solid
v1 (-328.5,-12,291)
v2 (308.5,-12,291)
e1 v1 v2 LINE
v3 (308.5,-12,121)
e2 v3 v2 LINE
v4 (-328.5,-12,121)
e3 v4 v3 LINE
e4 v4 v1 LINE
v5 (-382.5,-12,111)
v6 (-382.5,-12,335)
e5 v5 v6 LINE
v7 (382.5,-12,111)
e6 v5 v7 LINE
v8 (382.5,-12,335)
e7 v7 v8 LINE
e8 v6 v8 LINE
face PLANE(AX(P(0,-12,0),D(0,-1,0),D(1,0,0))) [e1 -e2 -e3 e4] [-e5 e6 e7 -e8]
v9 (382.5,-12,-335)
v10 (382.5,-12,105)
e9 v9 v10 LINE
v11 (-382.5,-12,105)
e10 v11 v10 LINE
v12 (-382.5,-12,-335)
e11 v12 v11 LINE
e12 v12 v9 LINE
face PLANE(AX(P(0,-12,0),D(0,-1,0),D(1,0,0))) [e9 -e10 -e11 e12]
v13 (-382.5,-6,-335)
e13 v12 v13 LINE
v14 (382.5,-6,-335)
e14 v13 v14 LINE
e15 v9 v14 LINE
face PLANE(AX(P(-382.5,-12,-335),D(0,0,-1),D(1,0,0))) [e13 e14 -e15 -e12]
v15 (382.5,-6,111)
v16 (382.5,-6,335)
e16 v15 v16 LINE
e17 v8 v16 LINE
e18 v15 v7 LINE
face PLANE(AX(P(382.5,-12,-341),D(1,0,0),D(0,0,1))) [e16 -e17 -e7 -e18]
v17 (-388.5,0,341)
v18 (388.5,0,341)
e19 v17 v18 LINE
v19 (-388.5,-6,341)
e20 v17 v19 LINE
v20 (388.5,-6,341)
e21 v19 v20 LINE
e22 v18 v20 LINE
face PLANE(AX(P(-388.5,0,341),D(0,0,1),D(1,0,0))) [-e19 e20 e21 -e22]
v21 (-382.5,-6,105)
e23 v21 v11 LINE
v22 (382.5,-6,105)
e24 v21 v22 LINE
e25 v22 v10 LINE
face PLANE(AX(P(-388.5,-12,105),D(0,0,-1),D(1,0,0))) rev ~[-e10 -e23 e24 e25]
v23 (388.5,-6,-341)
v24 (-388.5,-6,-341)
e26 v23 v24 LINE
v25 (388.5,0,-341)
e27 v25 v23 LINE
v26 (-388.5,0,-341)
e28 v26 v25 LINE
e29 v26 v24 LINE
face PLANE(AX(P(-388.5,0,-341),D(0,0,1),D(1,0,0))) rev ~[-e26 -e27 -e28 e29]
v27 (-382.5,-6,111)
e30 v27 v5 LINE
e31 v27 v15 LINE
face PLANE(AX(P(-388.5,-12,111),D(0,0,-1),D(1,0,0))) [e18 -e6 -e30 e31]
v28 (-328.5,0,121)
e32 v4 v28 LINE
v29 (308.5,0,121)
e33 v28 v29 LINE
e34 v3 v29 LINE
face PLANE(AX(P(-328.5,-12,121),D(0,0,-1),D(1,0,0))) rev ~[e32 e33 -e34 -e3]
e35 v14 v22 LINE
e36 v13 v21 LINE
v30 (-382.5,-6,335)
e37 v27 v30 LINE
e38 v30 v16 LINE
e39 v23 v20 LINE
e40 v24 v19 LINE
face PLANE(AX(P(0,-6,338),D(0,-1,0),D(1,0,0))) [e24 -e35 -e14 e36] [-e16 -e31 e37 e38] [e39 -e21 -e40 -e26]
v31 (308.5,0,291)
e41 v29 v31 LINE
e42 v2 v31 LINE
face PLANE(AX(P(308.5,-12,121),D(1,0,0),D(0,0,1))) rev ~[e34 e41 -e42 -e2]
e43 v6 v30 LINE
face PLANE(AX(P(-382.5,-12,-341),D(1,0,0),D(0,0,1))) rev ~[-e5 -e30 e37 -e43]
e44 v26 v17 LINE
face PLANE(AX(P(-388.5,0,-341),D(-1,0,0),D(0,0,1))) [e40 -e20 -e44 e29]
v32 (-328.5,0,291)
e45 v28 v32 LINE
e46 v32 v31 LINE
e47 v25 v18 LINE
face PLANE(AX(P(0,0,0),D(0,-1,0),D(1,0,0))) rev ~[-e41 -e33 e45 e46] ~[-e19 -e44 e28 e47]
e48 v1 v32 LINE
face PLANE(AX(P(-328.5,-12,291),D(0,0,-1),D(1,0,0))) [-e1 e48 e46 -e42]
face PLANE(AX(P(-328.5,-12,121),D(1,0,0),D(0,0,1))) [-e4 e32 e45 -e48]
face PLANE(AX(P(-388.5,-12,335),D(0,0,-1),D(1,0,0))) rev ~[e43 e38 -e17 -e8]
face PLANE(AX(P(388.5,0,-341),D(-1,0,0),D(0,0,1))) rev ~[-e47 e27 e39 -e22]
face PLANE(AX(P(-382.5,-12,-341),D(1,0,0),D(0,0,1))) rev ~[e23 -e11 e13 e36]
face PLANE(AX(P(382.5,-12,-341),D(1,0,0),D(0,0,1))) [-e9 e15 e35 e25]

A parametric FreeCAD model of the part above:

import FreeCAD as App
import Part
import Sketcher
from FreeCAD import Vector

doc = App.newDocument("Part")
body = doc.addObject("PartDesign::Body", "Body")

sketch1 = body.newObject("Sketcher::SketchObject", "Sketch")
sketch1.AttachmentSupport = (doc.getObject("XZ_Plane"), [""])
sketch1.MapMode = "FlatFace"
sketch1.addGeometry(Part.LineSegment(Vector(-388, 341, 0), Vector(-388, -341, 0)), False)
sketch1.addGeometry(Part.LineSegment(Vector(-388, -341, 0), Vector(388, -341, 0)), False)
sketch1.addGeometry(Part.LineSegment(Vector(388, -341, 0), Vector(388, 341, 0)), False)
sketch1.addGeometry(Part.LineSegment(Vector(388, 341, 0), Vector(-388, 341, 0)), False)
sketch1.addConstraint(Sketcher.Constraint("Coincident", 0, 2, 1, 1))
sketch1.addConstraint(Sketcher.Constraint("Coincident", 1, 2, 2, 1))
sketch1.addConstraint(Sketcher.Constraint("Coincident", 2, 2, 3, 1))
sketch1.addConstraint(Sketcher.Constraint("Coincident", 3, 2, 0, 1))
sketch1.addConstraint(Sketcher.Constraint("Vertical", 0))
sketch1.addConstraint(Sketcher.Constraint("Horizontal", 1))
sketch1.addConstraint(Sketcher.Constraint("Vertical", 2))
sketch1.addConstraint(Sketcher.Constraint("Horizontal", 3))
sketch1.addConstraint(Sketcher.Constraint("Symmetric", 0, 2, 2, 2, -1, 1))
sketch1.addConstraint(Sketcher.Constraint("DistanceX", 1, 1, 1, 2, 777.0))
sketch1.addConstraint(Sketcher.Constraint("DistanceY", 0, 2, 0, 1, 682.0))
pad1 = body.newObject("PartDesign::Pad", "Pad")
pad1.Profile = sketch1
pad1.Length = 12

sketch2 = body.newObject("Sketcher::SketchObject", "Sketch001")
sketch2.AttachmentSupport = (doc.getObject("XZ_Plane"), [""])
sketch2.MapMode = "FlatFace"
sketch2.AttachmentOffset = App.Placement(Vector(0, 0, 12), App.Rotation())
sketch2.addGeometry(Part.LineSegment(Vector(-388, 111, 0), Vector(-388, 105, 0)), False)
sketch2.addGeometry(Part.LineSegment(Vector(-388, 105, 0), Vector(388, 105, 0)), False)
sketch2.addGeometry(Part.LineSegment(Vector(388, 105, 0), Vector(388, 111, 0)), False)
sketch2.addGeometry(Part.LineSegment(Vector(388, 111, 0), Vector(-388, 111, 0)), False)
sketch2.addConstraint(Sketcher.Constraint("Coincident", 0, 2, 1, 1))
sketch2.addConstraint(Sketcher.Constraint("Coincident", 1, 2, 2, 1))
sketch2.addConstraint(Sketcher.Constraint("Coincident", 2, 2, 3, 1))
sketch2.addConstraint(Sketcher.Constraint("Coincident", 3, 2, 0, 1))
sketch2.addConstraint(Sketcher.Constraint("Vertical", 0))
sketch2.addConstraint(Sketcher.Constraint("Horizontal", 1))
sketch2.addConstraint(Sketcher.Constraint("Vertical", 2))
sketch2.addConstraint(Sketcher.Constraint("Horizontal", 3))
sketch2.addConstraint(Sketcher.Constraint("DistanceX", 1, 1, 1, 2, 777.0))
sketch2.addConstraint(Sketcher.Constraint("DistanceY", 0, 2, 0, 1, 6.0))
sketch2.addConstraint(Sketcher.Constraint("DistanceY", -1, 1, 0, 2, 105.0))
sketch2.addConstraint(Sketcher.Constraint("DistanceX", 0, 2, -1, 1, 388.5))
pocket1 = body.newObject("PartDesign::Pocket", "Pocket")
pocket1.Profile = sketch2
pocket1.Length = 6

sketch3 = body.newObject("Sketcher::SketchObject", "Sketch002")
sketch3.AttachmentSupport = (doc.getObject("XZ_Plane"), [""])
sketch3.MapMode = "FlatFace"
sketch3.AttachmentOffset = App.Placement(Vector(0, 0, 12), App.Rotation())
sketch3.addGeometry(Part.LineSegment(Vector(-328, 291, 0), Vector(-328, 121, 0)), False)
sketch3.addGeometry(Part.LineSegment(Vector(-328, 121, 0), Vector(308, 121, 0)), False)
sketch3.addGeometry(Part.LineSegment(Vector(308, 121, 0), Vector(308, 291, 0)), False)
sketch3.addGeometry(Part.LineSegment(Vector(308, 291, 0), Vector(-328, 291, 0)), False)
sketch3.addConstraint(Sketcher.Constraint("Coincident", 0, 2, 1, 1))
sketch3.addConstraint(Sketcher.Constraint("Coincident", 1, 2, 2, 1))
sketch3.addConstraint(Sketcher.Constraint("Coincident", 2, 2, 3, 1))
sketch3.addConstraint(Sketcher.Constraint("Coincident", 3, 2, 0, 1))
sketch3.addConstraint(Sketcher.Constraint("Vertical", 0))
sketch3.addConstraint(Sketcher.Constraint("Horizontal", 1))
sketch3.addConstraint(Sketcher.Constraint("Vertical", 2))
sketch3.addConstraint(Sketcher.Constraint("Horizontal", 3))
sketch3.addConstraint(Sketcher.Constraint("DistanceX", 1, 1, 1, 2, 637.0))
sketch3.addConstraint(Sketcher.Constraint("DistanceY", 0, 2, 0, 1, 170.0))
sketch3.addConstraint(Sketcher.Constraint("DistanceY", -1, 1, 0, 2, 121.0))
sketch3.addConstraint(Sketcher.Constraint("DistanceX", 0, 2, -1, 1, 328.5))
pocket2 = body.newObject("PartDesign::Pocket", "Pocket001")
pocket2.Profile = sketch3
pocket2.Type = "ThroughAll"

sketch4 = body.newObject("Sketcher::SketchObject", "Sketch003")
sketch4.AttachmentSupport = (doc.getObject("XZ_Plane"), [""])
sketch4.MapMode = "FlatFace"
sketch4.AttachmentOffset = App.Placement(Vector(0, 0, 12), App.Rotation())
sketch4.addGeometry(Part.LineSegment(Vector(-388, 341, 0), Vector(-388, 335, 0)), False)
sketch4.addGeometry(Part.LineSegment(Vector(-388, 335, 0), Vector(388, 335, 0)), False)
sketch4.addGeometry(Part.LineSegment(Vector(388, 335, 0), Vector(388, 341, 0)), False)
sketch4.addGeometry(Part.LineSegment(Vector(388, 341, 0), Vector(-388, 341, 0)), False)
sketch4.addConstraint(Sketcher.Constraint("Coincident", 0, 2, 1, 1))
sketch4.addConstraint(Sketcher.Constraint("Coincident", 1, 2, 2, 1))
sketch4.addConstraint(Sketcher.Constraint("Coincident", 2, 2, 3, 1))
sketch4.addConstraint(Sketcher.Constraint("Coincident", 3, 2, 0, 1))
sketch4.addConstraint(Sketcher.Constraint("Vertical", 0))
sketch4.addConstraint(Sketcher.Constraint("Horizontal", 1))
sketch4.addConstraint(Sketcher.Constraint("Vertical", 2))
sketch4.addConstraint(Sketcher.Constraint("Horizontal", 3))
sketch4.addConstraint(Sketcher.Constraint("DistanceX", 1, 1, 1, 2, 777.0))
sketch4.addConstraint(Sketcher.Constraint("DistanceY", 0, 2, 0, 1, 6.0))
sketch4.addConstraint(Sketcher.Constraint("DistanceY", -1, 1, 0, 2, 335.0))
sketch4.addConstraint(Sketcher.Constraint("DistanceX", 0, 2, -1, 1, 388.5))
pocket3 = body.newObject("PartDesign::Pocket", "Pocket002")
pocket3.Profile = sketch4
pocket3.Length = 6

sketch5 = body.newObject("Sketcher::SketchObject", "Sketch004")
sketch5.AttachmentSupport = (doc.getObject("XZ_Plane"), [""])
sketch5.MapMode = "FlatFace"
sketch5.AttachmentOffset = App.Placement(Vector(0, 0, 12), App.Rotation())
sketch5.addGeometry(Part.LineSegment(Vector(-388, 335, 0), Vector(-388, -341, 0)), False)
sketch5.addGeometry(Part.LineSegment(Vector(-388, -341, 0), Vector(-382, -341, 0)), False)
sketch5.addGeometry(Part.LineSegment(Vector(-382, -341, 0), Vector(-382, 335, 0)), False)
sketch5.addGeometry(Part.LineSegment(Vector(-382, 335, 0), Vector(-388, 335, 0)), False)
sketch5.addConstraint(Sketcher.Constraint("Coincident", 0, 2, 1, 1))
sketch5.addConstraint(Sketcher.Constraint("Coincident", 1, 2, 2, 1))
sketch5.addConstraint(Sketcher.Constraint("Coincident", 2, 2, 3, 1))
sketch5.addConstraint(Sketcher.Constraint("Coincident", 3, 2, 0, 1))
sketch5.addConstraint(Sketcher.Constraint("Vertical", 0))
sketch5.addConstraint(Sketcher.Constraint("Horizontal", 1))
sketch5.addConstraint(Sketcher.Constraint("Vertical", 2))
sketch5.addConstraint(Sketcher.Constraint("Horizontal", 3))
sketch5.addConstraint(Sketcher.Constraint("DistanceX", 1, 1, 1, 2, 6.0))
sketch5.addConstraint(Sketcher.Constraint("DistanceY", 0, 2, 0, 1, 676.0))
sketch5.addConstraint(Sketcher.Constraint("DistanceY", 0, 2, -1, 1, 341.0))
sketch5.addConstraint(Sketcher.Constraint("DistanceX", 0, 2, -1, 1, 388.5))
pocket4 = body.newObject("PartDesign::Pocket", "Pocket003")
pocket4.Profile = sketch5
pocket4.Length = 6

sketch6 = body.newObject("Sketcher::SketchObject", "Sketch005")
sketch6.AttachmentSupport = (doc.getObject("XZ_Plane"), [""])
sketch6.MapMode = "FlatFace"
sketch6.AttachmentOffset = App.Placement(Vector(0, 0, 12), App.Rotation())
sketch6.addGeometry(Part.LineSegment(Vector(382, 335, 0), Vector(382, -341, 0)), False)
sketch6.addGeometry(Part.LineSegment(Vector(382, -341, 0), Vector(388, -341, 0)), False)
sketch6.addGeometry(Part.LineSegment(Vector(388, -341, 0), Vector(388, 335, 0)), False)
sketch6.addGeometry(Part.LineSegment(Vector(388, 335, 0), Vector(382, 335, 0)), False)
sketch6.addConstraint(Sketcher.Constraint("Coincident", 0, 2, 1, 1))
sketch6.addConstraint(Sketcher.Constraint("Coincident", 1, 2, 2, 1))
sketch6.addConstraint(Sketcher.Constraint("Coincident", 2, 2, 3, 1))
sketch6.addConstraint(Sketcher.Constraint("Coincident", 3, 2, 0, 1))
sketch6.addConstraint(Sketcher.Constraint("Vertical", 0))
sketch6.addConstraint(Sketcher.Constraint("Horizontal", 1))
sketch6.addConstraint(Sketcher.Constraint("Vertical", 2))
sketch6.addConstraint(Sketcher.Constraint("Horizontal", 3))
sketch6.addConstraint(Sketcher.Constraint("DistanceX", 1, 1, 1, 2, 6.0))
sketch6.addConstraint(Sketcher.Constraint("DistanceY", 0, 2, 0, 1, 676.0))
sketch6.addConstraint(Sketcher.Constraint("DistanceY", 0, 2, -1, 1, 341.0))
sketch6.addConstraint(Sketcher.Constraint("DistanceX", -1, 1, 0, 2, 382.5))
pocket5 = body.newObject("PartDesign::Pocket", "Pocket004")
pocket5.Profile = sketch6
pocket5.Length = 6

sketch7 = body.newObject("Sketcher::SketchObject", "Sketch006")
sketch7.AttachmentSupport = (doc.getObject("XZ_Plane"), [""])
sketch7.MapMode = "FlatFace"
sketch7.AttachmentOffset = App.Placement(Vector(0, 0, 12), App.Rotation())
sketch7.addGeometry(Part.LineSegment(Vector(-382, -335, 0), Vector(-382, -341, 0)), False)
sketch7.addGeometry(Part.LineSegment(Vector(-382, -341, 0), Vector(382, -341, 0)), False)
sketch7.addGeometry(Part.LineSegment(Vector(382, -341, 0), Vector(382, -335, 0)), False)
sketch7.addGeometry(Part.LineSegment(Vector(382, -335, 0), Vector(-382, -335, 0)), False)
sketch7.addConstraint(Sketcher.Constraint("Coincident", 0, 2, 1, 1))
sketch7.addConstraint(Sketcher.Constraint("Coincident", 1, 2, 2, 1))
sketch7.addConstraint(Sketcher.Constraint("Coincident", 2, 2, 3, 1))
sketch7.addConstraint(Sketcher.Constraint("Coincident", 3, 2, 0, 1))
sketch7.addConstraint(Sketcher.Constraint("Vertical", 0))
sketch7.addConstraint(Sketcher.Constraint("Horizontal", 1))
sketch7.addConstraint(Sketcher.Constraint("Vertical", 2))
sketch7.addConstraint(Sketcher.Constraint("Horizontal", 3))
sketch7.addConstraint(Sketcher.Constraint("DistanceX", 1, 1, 1, 2, 765.0))
sketch7.addConstraint(Sketcher.Constraint("DistanceY", 0, 2, 0, 1, 6.0))
sketch7.addConstraint(Sketcher.Constraint("DistanceY", 0, 2, -1, 1, 341.0))
sketch7.addConstraint(Sketcher.Constraint("DistanceX", 0, 2, -1, 1, 382.5))
pocket6 = body.newObject("PartDesign::Pocket", "Pocket005")
pocket6.Profile = sketch7
pocket6.Length = 6

doc.recompute()
